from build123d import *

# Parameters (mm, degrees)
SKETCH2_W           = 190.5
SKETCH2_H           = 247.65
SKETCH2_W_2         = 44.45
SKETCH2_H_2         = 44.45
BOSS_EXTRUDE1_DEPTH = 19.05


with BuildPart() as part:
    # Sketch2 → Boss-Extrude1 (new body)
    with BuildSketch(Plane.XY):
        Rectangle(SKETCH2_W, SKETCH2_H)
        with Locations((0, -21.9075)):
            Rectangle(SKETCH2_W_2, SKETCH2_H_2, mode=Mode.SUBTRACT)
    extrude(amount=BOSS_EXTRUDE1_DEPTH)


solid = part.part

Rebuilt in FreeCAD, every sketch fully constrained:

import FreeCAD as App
import Part
import Sketcher
Q = App.Units.Quantity


def add_polygon(sketch, points):
    """Adds a closed chain of lines whose ends are joined by coincident constraints."""
    first, n = sketch.GeometryCount, len(points)
    for a, b in zip(points, points[1:] + points[:1]):
        sketch.addGeometry(Part.LineSegment(App.Vector(*a, 0), App.Vector(*b, 0)), False)
    for i in range(n):
        sketch.addConstraint(Sketcher.Constraint("Coincident", first + i, 2, first + (i + 1) % n, 1))

doc = App.newDocument("Part")
body = doc.addObject("PartDesign::Body", "Body")

sketch1 = body.newObject("Sketcher::SketchObject", "Sketch")
sketch1.AttachmentSupport = (doc.getObject("XY_Plane"), [""])
sketch1.MapMode = "FlatFace"
add_polygon(sketch1, [(-95, 124), (-95, -124), (95, -124), (95, 124)])
add_polygon(sketch1, [(22, -44), (-22, -44), (-22, 0), (22, 0)])
sketch1.addConstraint([
    Sketcher.Constraint("Vertical", 0),
    Sketcher.Constraint("Horizontal", 1),
    Sketcher.Constraint("Vertical", 2),
    Sketcher.Constraint("Horizontal", 3),
    Sketcher.Constraint("Horizontal", 4),
    Sketcher.Constraint("Vertical", 5),
    Sketcher.Constraint("Horizontal", 6),
    Sketcher.Constraint("Vertical", 7),
    Sketcher.Constraint("Symmetric", 0, 2, 2, 2, -1, 1),
    Sketcher.Constraint("Equal", 6, 5),
    Sketcher.Constraint("DistanceX", 1, 1, 1, 2, Q("7.5 in")),
    Sketcher.Constraint("DistanceX", 4, 2, 4, 1, Q("1.75 in")),
    Sketcher.Constraint("DistanceY", 0, 2, 0, 1, Q("9.75 in")),
    Sketcher.Constraint("DistanceX", 4, 2, -1, 1, Q("0.875 in")),
    Sketcher.Constraint("DistanceY", 4, 2, -1, 1, Q("1.7375 in")),
])
pad1 = body.newObject("PartDesign::Pad", "Pad")
pad1.Profile = sketch1
pad1.Length = Q("0.75 in")

doc.recompute()
